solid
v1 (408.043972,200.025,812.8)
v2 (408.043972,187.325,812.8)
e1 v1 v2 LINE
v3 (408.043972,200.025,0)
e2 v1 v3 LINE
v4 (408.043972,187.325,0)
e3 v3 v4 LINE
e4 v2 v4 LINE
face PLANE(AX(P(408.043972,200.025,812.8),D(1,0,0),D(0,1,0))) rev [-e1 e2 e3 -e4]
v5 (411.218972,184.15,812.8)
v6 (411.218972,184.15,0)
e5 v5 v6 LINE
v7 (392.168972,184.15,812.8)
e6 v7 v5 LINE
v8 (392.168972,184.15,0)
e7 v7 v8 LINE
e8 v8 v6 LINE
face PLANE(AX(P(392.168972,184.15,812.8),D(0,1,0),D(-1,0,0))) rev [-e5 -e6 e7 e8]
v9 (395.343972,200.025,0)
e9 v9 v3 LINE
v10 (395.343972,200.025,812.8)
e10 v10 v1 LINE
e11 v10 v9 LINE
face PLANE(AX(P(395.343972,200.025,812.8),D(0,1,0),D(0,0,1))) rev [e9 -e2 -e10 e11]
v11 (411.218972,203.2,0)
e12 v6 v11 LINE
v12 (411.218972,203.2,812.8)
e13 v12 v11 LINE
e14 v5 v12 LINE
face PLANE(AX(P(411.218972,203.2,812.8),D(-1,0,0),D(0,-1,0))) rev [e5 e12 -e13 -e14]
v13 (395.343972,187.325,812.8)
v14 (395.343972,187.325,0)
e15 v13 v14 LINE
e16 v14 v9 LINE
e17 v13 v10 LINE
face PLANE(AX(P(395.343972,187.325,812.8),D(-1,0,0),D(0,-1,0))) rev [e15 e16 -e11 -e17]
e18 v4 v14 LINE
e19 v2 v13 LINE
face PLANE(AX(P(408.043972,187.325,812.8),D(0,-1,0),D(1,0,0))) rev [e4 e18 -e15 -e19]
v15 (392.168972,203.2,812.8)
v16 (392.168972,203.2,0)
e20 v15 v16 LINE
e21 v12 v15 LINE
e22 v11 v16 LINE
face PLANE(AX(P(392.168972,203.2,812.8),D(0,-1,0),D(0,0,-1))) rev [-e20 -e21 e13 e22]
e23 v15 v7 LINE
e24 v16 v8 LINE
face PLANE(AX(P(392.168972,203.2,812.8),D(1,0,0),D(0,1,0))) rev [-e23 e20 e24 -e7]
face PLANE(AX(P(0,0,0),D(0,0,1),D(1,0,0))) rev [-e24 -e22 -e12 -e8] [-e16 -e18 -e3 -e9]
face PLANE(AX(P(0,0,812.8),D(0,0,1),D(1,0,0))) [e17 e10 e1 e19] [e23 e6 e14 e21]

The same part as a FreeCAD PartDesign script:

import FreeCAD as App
import Part
import Sketcher
from FreeCAD import Vector
Q = App.Units.Quantity


def add_polygon(sketch, points):
    """Adds a closed chain of lines whose ends are joined by coincident constraints."""
    first, n = sketch.GeometryCount, len(points)
    for a, b in zip(points, points[1:] + points[:1]):
        sketch.addGeometry(Part.LineSegment(App.Vector(*a, 0), App.Vector(*b, 0)), False)
    for i in range(n):
        sketch.addConstraint(Sketcher.Constraint("Coincident", first + i, 2, first + (i + 1) % n, 1))

doc = App.newDocument("Part")
body = doc.addObject("PartDesign::Body", "Body")

# Sketch on XY plane
sketch1 = body.newObject("Sketcher::SketchObject", "Sketch")
sketch1.AttachmentSupport = (doc.getObject("XY_Plane"), [""])
sketch1.MapMode = "FlatFace"
add_polygon(sketch1, [(392, 203), (392, 184), (411, 184), (411, 203)])  # lines 0-3
sketch1.addConstraint([
    Sketcher.Constraint("Vertical", 0),
    Sketcher.Constraint("Horizontal", 1),
    Sketcher.Constraint("Vertical", 2),
    Sketcher.Constraint("Horizontal", 3),
    Sketcher.Constraint("Equal", 3, 0),
    Sketcher.Constraint("DistanceY", -1, 1, 2, 2, Q("8 in")),
    Sketcher.Constraint("DistanceX", 1, 1, 1, 2, Q("0.75 in")),
    Sketcher.Constraint("DistanceX", -1, 1, 0, 2, Q("392.168972 mm")),
])
pad1 = body.newObject("PartDesign::Pad", "Pad")
pad1.Profile = sketch1
pad1.Length = Q("32 in")

# Sketch on XY plane
sketch2 = body.newObject("Sketcher::SketchObject", "Sketch001")
sketch2.AttachmentSupport = (doc.getObject("XY_Plane"), [""])
sketch2.MapMode = "FlatFace"
add_polygon(sketch2, [(408, 200), (408, 187), (395, 187), (395, 200)])  # lines 0-3
sketch2.addConstraint([
    Sketcher.Constraint("Vertical", 0),
    Sketcher.Constraint("Horizontal", 1),
    Sketcher.Constraint("Vertical", 2),
    Sketcher.Constraint("Horizontal", 3),
    Sketcher.Constraint("Equal", 3, 0),
    Sketcher.Constraint("DistanceX", 1, 2, 1, 1, Q("0.5 in")),
    Sketcher.Constraint("DistanceY", -1, 1, 0, 2, Q("7.375 in")),
    Sketcher.Constraint("DistanceX", -1, 1, 0, 2, Q("408.043972 mm")),
])
pocket1 = body.newObject("PartDesign::Pocket", "Pocket")
pocket1.Profile = sketch2
pocket1.Length = Q("32 in")
pocket1.Reversed = True

doc.recompute()
